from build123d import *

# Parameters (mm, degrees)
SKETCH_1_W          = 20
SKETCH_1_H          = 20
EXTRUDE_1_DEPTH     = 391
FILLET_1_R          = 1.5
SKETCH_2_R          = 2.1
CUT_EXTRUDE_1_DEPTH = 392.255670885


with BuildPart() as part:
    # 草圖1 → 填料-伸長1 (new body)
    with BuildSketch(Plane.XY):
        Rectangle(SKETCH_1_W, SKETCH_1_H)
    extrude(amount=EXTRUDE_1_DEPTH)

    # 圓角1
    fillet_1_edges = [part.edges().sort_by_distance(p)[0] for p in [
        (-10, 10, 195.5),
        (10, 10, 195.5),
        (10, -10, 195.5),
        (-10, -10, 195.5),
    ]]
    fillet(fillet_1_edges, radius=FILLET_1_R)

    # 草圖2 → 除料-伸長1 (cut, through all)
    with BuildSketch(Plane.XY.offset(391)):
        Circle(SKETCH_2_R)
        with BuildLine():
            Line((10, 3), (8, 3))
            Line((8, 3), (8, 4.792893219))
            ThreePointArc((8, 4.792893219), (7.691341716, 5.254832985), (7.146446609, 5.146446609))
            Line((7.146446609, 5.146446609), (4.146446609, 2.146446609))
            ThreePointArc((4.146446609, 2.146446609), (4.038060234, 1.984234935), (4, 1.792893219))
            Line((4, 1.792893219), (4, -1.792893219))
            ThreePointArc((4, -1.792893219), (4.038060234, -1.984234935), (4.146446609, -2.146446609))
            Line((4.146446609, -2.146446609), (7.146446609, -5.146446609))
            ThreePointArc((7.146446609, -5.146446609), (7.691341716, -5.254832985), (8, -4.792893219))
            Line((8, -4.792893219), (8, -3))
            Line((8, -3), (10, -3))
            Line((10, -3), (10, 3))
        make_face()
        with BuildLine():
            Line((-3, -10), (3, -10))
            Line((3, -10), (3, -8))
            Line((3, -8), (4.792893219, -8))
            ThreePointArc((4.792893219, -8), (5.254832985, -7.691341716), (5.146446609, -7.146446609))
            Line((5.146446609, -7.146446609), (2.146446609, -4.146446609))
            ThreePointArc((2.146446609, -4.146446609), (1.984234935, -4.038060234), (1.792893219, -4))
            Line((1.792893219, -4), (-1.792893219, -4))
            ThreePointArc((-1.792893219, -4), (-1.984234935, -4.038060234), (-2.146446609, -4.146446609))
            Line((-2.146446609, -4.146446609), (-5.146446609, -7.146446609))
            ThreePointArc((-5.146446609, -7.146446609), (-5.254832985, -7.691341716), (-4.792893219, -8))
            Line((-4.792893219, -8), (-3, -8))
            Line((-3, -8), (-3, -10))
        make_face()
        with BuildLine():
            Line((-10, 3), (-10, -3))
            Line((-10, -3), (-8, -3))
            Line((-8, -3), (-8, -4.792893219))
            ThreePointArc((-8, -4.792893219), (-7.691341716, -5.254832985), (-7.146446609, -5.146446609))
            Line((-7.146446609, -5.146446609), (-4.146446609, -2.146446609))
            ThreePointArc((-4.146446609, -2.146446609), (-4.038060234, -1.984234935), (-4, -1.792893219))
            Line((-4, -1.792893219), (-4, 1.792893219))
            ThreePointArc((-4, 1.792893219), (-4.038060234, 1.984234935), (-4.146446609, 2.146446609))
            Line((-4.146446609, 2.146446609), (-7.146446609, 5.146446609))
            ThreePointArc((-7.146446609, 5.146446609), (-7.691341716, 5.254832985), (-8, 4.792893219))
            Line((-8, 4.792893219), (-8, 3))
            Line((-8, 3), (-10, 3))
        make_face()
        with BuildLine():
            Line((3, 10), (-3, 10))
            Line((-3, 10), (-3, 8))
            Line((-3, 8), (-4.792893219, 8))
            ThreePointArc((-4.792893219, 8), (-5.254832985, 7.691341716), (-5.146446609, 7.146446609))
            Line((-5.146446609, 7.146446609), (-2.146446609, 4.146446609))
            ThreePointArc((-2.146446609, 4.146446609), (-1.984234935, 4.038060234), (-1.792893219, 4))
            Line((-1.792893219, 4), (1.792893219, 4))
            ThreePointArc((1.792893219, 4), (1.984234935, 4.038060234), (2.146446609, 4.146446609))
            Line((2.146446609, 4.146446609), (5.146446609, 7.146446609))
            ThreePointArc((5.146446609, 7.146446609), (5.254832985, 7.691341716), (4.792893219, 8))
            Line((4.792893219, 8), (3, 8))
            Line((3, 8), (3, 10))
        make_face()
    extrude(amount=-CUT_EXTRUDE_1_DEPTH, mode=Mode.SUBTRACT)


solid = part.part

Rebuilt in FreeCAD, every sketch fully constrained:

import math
import FreeCAD as App
import Part
import Sketcher


def edges_at(feature, points):
    """Names of the edges that pass closest to the given points."""
    edges = feature.Shape.Edges
    near = lambda p: min(range(len(edges)), key=lambda i: edges[i].distToShape(Part.Vertex(*p))[0])
    return sorted({f"Edge{near(p) + 1}" for p in points})


def add_polygon(sketch, points):
    """Adds a closed chain of lines whose ends are joined by coincident constraints."""
    first, n = sketch.GeometryCount, len(points)
    for a, b in zip(points, points[1:] + points[:1]):
        sketch.addGeometry(Part.LineSegment(App.Vector(*a, 0), App.Vector(*b, 0)), False)
    for i in range(n):
        sketch.addConstraint(Sketcher.Constraint("Coincident", first + i, 2, first + (i + 1) % n, 1))

doc = App.newDocument("Part")
body = doc.addObject("PartDesign::Body", "Body")

# Sketch on XY plane
sketch1 = body.newObject("Sketcher::SketchObject", "Sketch")
sketch1.AttachmentSupport = (doc.getObject("XY_Plane"), [""])
sketch1.MapMode = "FlatFace"
add_polygon(sketch1, [(-10, 10), (-10, -10), (10, -10), (10, 10)])  # lines 0-3
sketch1.addConstraint(Sketcher.Constraint("Vertical", 0))
sketch1.addConstraint(Sketcher.Constraint("Horizontal", 1))
sketch1.addConstraint(Sketcher.Constraint("Vertical", 2))
sketch1.addConstraint(Sketcher.Constraint("Horizontal", 3))
sketch1.addConstraint(Sketcher.Constraint("Symmetric", 0, 2, 2, 2, -1, 1))
sketch1.addConstraint(Sketcher.Constraint("Equal", 3, 0))
sketch1.addConstraint(Sketcher.Constraint("DistanceX", 1, 1, 1, 2, 20.0))
pad1 = body.newObject("PartDesign::Pad", "Pad")
pad1.Profile = sketch1
pad1.Length = 391
doc.recompute()

fillet = body.newObject("PartDesign::Fillet", "Fillet")
fillet.Base = (pad1, edges_at(pad1, [
    (-10, 10, 195.5),
    (10, 10, 195.5),
    (10, -10, 195.5),
    (-10, -10, 195.5),
]))
fillet.Radius = 1.5

# Sketch on XY plane
sketch2 = body.newObject("Sketcher::SketchObject", "Sketch001")
sketch2.AttachmentSupport = (doc.getObject("XY_Plane"), [""])
sketch2.MapMode = "FlatFace"
sketch2.AttachmentOffset = App.Placement(App.Vector(0, 0, 391), App.Rotation())
sketch2.addGeometry(Part.Circle(App.Vector(0, 0, 0), App.Vector(0, 0, 1), 2.1), False)
sketch2.addGeometry(Part.LineSegment(App.Vector(10, 3, 0), App.Vector(8, 3, 0)), False)
sketch2.addGeometry(Part.LineSegment(App.Vector(8, 3, 0), App.Vector(8, 4.79, 0)), False)
sketch2.addGeometry(Part.ArcOfCircle(Part.Circle(App.Vector(7.5, 4.79, 0), App.Vector(0, 0, 1), 0.5), math.radians(0), math.radians(135)), False)
sketch2.addGeometry(Part.LineSegment(App.Vector(7.15, 5.15, 0), App.Vector(4.15, 2.15, 0)), False)
sketch2.addGeometry(Part.ArcOfCircle(Part.Circle(App.Vector(4.5, 1.79, 0), App.Vector(0, 0, 1), 0.5), math.radians(135), math.radians(180)), False)
sketch2.addGeometry(Part.LineSegment(App.Vector(4, 1.79, 0), App.Vector(4, -1.79, 0)), False)
sketch2.addGeometry(Part.ArcOfCircle(Part.Circle(App.Vector(4.5, -1.79, 0), App.Vector(0, 0, 1), 0.5), math.radians(-180), math.radians(-135)), False)
sketch2.addGeometry(Part.LineSegment(App.Vector(4.15, -2.15, 0), App.Vector(7.15, -5.15, 0)), False)
sketch2.addGeometry(Part.ArcOfCircle(Part.Circle(App.Vector(7.5, -4.79, 0), App.Vector(0, 0, 1), 0.5), math.radians(-135), math.radians(0)), False)
sketch2.addGeometry(Part.LineSegment(App.Vector(8, -4.79, 0), App.Vector(8, -3, 0)), False)
sketch2.addGeometry(Part.LineSegment(App.Vector(8, -3, 0), App.Vector(10, -3, 0)), False)
sketch2.addGeometry(Part.LineSegment(App.Vector(10, -3, 0), App.Vector(10, 3, 0)), False)
sketch2.addGeometry(Part.LineSegment(App.Vector(-3, -10, 0), App.Vector(3, -10, 0)), False)
sketch2.addGeometry(Part.LineSegment(App.Vector(3, -10, 0), App.Vector(3, -8, 0)), False)
sketch2.addGeometry(Part.LineSegment(App.Vector(3, -8, 0), App.Vector(4.79, -8, 0)), False)
sketch2.addGeometry(Part.ArcOfCircle(Part.Circle(App.Vector(4.79, -7.5, 0), App.Vector(0, 0, 1), 0.5), math.radians(-90), math.radians(45)), False)
sketch2.addGeometry(Part.LineSegment(App.Vector(5.15, -7.15, 0), App.Vector(2.15, -4.15, 0)), False)
sketch2.addGeometry(Part.ArcOfCircle(Part.Circle(App.Vector(1.79, -4.5, 0), App.Vector(0, 0, 1), 0.5), math.radians(45), math.radians(90)), False)
sketch2.addGeometry(Part.LineSegment(App.Vector(1.79, -4, 0), App.Vector(-1.79, -4, 0)), False)
sketch2.addGeometry(Part.ArcOfCircle(Part.Circle(App.Vector(-1.79, -4.5, 0), App.Vector(0, 0, 1), 0.5), math.radians(90), math.radians(135)), False)
sketch2.addGeometry(Part.LineSegment(App.Vector(-2.15, -4.15, 0), App.Vector(-5.15, -7.15, 0)), False)
sketch2.addGeometry(Part.ArcOfCircle(Part.Circle(App.Vector(-4.79, -7.5, 0), App.Vector(0, 0, 1), 0.5), math.radians(135), math.radians(270)), False)
sketch2.addGeometry(Part.LineSegment(App.Vector(-4.79, -8, 0), App.Vector(-3, -8, 0)), False)
sketch2.addGeometry(Part.LineSegment(App.Vector(-3, -8, 0), App.Vector(-3, -10, 0)), False)
sketch2.addGeometry(Part.LineSegment(App.Vector(-10, 3, 0), App.Vector(-10, -3, 0)), False)
sketch2.addGeometry(Part.LineSegment(App.Vector(-10, -3, 0), App.Vector(-8, -3, 0)), False)
sketch2.addGeometry(Part.LineSegment(App.Vector(-8, -3, 0), App.Vector(-8, -4.79, 0)), False)
sketch2.addGeometry(Part.ArcOfCircle(Part.Circle(App.Vector(-7.5, -4.79, 0), App.Vector(0, 0, 1), 0.5), math.radians(180), math.radians(315)), False)
sketch2.addGeometry(Part.LineSegment(App.Vector(-7.15, -5.15, 0), App.Vector(-4.15, -2.15, 0)), False)
sketch2.addGeometry(Part.ArcOfCircle(Part.Circle(App.Vector(-4.5, -1.79, 0), App.Vector(0, 0, 1), 0.5), math.radians(-45), math.radians(0)), False)
sketch2.addGeometry(Part.LineSegment(App.Vector(-4, -1.79, 0), App.Vector(-4, 1.79, 0)), False)
sketch2.addGeometry(Part.ArcOfCircle(Part.Circle(App.Vector(-4.5, 1.79, 0), App.Vector(0, 0, 1), 0.5), math.radians(0), math.radians(45)), False)
sketch2.addGeometry(Part.LineSegment(App.Vector(-4.15, 2.15, 0), App.Vector(-7.15, 5.15, 0)), False)
sketch2.addGeometry(Part.ArcOfCircle(Part.Circle(App.Vector(-7.5, 4.79, 0), App.Vector(0, 0, 1), 0.5), math.radians(45), math.radians(180)), False)
sketch2.addGeometry(Part.LineSegment(App.Vector(-8, 4.79, 0), App.Vector(-8, 3, 0)), False)
sketch2.addGeometry(Part.LineSegment(App.Vector(-8, 3, 0), App.Vector(-10, 3, 0)), False)
sketch2.addGeometry(Part.LineSegment(App.Vector(3, 10, 0), App.Vector(-3, 10, 0)), False)
sketch2.addGeometry(Part.LineSegment(App.Vector(-3, 10, 0), App.Vector(-3, 8, 0)), False)
sketch2.addGeometry(Part.LineSegment(App.Vector(-3, 8, 0), App.Vector(-4.79, 8, 0)), False)
sketch2.addGeometry(Part.ArcOfCircle(Part.Circle(App.Vector(-4.79, 7.5, 0), App.Vector(0, 0, 1), 0.5), math.radians(90), math.radians(225)), False)
sketch2.addGeometry(Part.LineSegment(App.Vector(-5.15, 7.15, 0), App.Vector(-2.15, 4.15, 0)), False)
sketch2.addGeometry(Part.ArcOfCircle(Part.Circle(App.Vector(-1.79, 4.5, 0), App.Vector(0, 0, 1), 0.5), math.radians(-135), math.radians(-90)), False)
sketch2.addGeometry(Part.LineSegment(App.Vector(-1.79, 4, 0), App.Vector(1.79, 4, 0)), False)
sketch2.addGeometry(Part.ArcOfCircle(Part.Circle(App.Vector(1.79, 4.5, 0), App.Vector(0, 0, 1), 0.5), math.radians(-90), math.radians(-45)), False)
sketch2.addGeometry(Part.LineSegment(App.Vector(2.15, 4.15, 0), App.Vector(5.15, 7.15, 0)), False)
sketch2.addGeometry(Part.ArcOfCircle(Part.Circle(App.Vector(4.79, 7.5, 0), App.Vector(0, 0, 1), 0.5), math.radians(-45), math.radians(90)), False)
sketch2.addGeometry(Part.LineSegment(App.Vector(4.79, 8, 0), App.Vector(3, 8, 0)), False)
sketch2.addGeometry(Part.LineSegment(App.Vector(3, 8, 0), App.Vector(3, 10, 0)), False)
sketch2.addConstraint(Sketcher.Constraint("Coincident", 1, 2, 2, 1))
sketch2.addConstraint(Sketcher.Constraint("Tangent", 2, 2, 3, 1))
sketch2.addConstraint(Sketcher.Constraint("Tangent", 3, 2, 4, 1))
sketch2.addConstraint(Sketcher.Constraint("Tangent", 4, 2, 5, 1))
sketch2.addConstraint(Sketcher.Constraint("Tangent", 5, 2, 6, 1))
sketch2.addConstraint(Sketcher.Constraint("Tangent", 6, 2, 7, 1))
sketch2.addConstraint(Sketcher.Constraint("Tangent", 7, 2, 8, 1))
sketch2.addConstraint(Sketcher.Constraint("Tangent", 8, 2, 9, 1))
sketch2.addConstraint(Sketcher.Constraint("Tangent", 9, 2, 10, 1))
sketch2.addConstraint(Sketcher.Constraint("Coincident", 10, 2, 11, 1))
sketch2.addConstraint(Sketcher.Constraint("Coincident", 11, 2, 12, 1))
sketch2.addConstraint(Sketcher.Constraint("Coincident", 12, 2, 1, 1))
sketch2.addConstraint(Sketcher.Constraint("Coincident", 13, 2, 14, 1))
sketch2.addConstraint(Sketcher.Constraint("Coincident", 14, 2, 15, 1))
sketch2.addConstraint(Sketcher.Constraint("Tangent", 15, 2, 16, 1))
sketch2.addConstraint(Sketcher.Constraint("Tangent", 16, 2, 17, 1))
sketch2.addConstraint(Sketcher.Constraint("Tangent", 17, 2, 18, 1))
sketch2.addConstraint(Sketcher.Constraint("Tangent", 18, 2, 19, 1))
sketch2.addConstraint(Sketcher.Constraint("Tangent", 19, 2, 20, 1))
sketch2.addConstraint(Sketcher.Constraint("Tangent", 20, 2, 21, 1))
sketch2.addConstraint(Sketcher.Constraint("Tangent", 21, 2, 22, 1))
sketch2.addConstraint(Sketcher.Constraint("Tangent", 22, 2, 23, 1))
sketch2.addConstraint(Sketcher.Constraint("Coincident", 23, 2, 24, 1))
sketch2.addConstraint(Sketcher.Constraint("Coincident", 24, 2, 13, 1))
sketch2.addConstraint(Sketcher.Constraint("Coincident", 25, 2, 26, 1))
sketch2.addConstraint(Sketcher.Constraint("Coincident", 26, 2, 27, 1))
sketch2.addConstraint(Sketcher.Constraint("Tangent", 27, 2, 28, 1))
sketch2.addConstraint(Sketcher.Constraint("Tangent", 28, 2, 29, 1))
sketch2.addConstraint(Sketcher.Constraint("Tangent", 29, 2, 30, 1))
sketch2.addConstraint(Sketcher.Constraint("Tangent", 30, 2, 31, 1))
sketch2.addConstraint(Sketcher.Constraint("Tangent", 31, 2, 32, 1))
sketch2.addConstraint(Sketcher.Constraint("Tangent", 32, 2, 33, 1))
sketch2.addConstraint(Sketcher.Constraint("Tangent", 33, 2, 34, 1))
sketch2.addConstraint(Sketcher.Constraint("Tangent", 34, 2, 35, 1))
sketch2.addConstraint(Sketcher.Constraint("Coincident", 35, 2, 36, 1))
sketch2.addConstraint(Sketcher.Constraint("Coincident", 36, 2, 25, 1))
sketch2.addConstraint(Sketcher.Constraint("Coincident", 37, 2, 38, 1))
sketch2.addConstraint(Sketcher.Constraint("Coincident", 38, 2, 39, 1))
sketch2.addConstraint(Sketcher.Constraint("Tangent", 39, 2, 40, 1))
sketch2.addConstraint(Sketcher.Constraint("Tangent", 40, 2, 41, 1))
sketch2.addConstraint(Sketcher.Constraint("Tangent", 41, 2, 42, 1))
sketch2.addConstraint(Sketcher.Constraint("Tangent", 42, 2, 43, 1))
sketch2.addConstraint(Sketcher.Constraint("Tangent", 43, 2, 44, 1))
sketch2.addConstraint(Sketcher.Constraint("Tangent", 44, 2, 45, 1))
sketch2.addConstraint(Sketcher.Constraint("Tangent", 45, 2, 46, 1))
sketch2.addConstraint(Sketcher.Constraint("Tangent", 46, 2, 47, 1))
sketch2.addConstraint(Sketcher.Constraint("Coincident", 47, 2, 48, 1))
sketch2.addConstraint(Sketcher.Constraint("Coincident", 48, 2, 37, 1))
sketch2.addConstraint(Sketcher.Constraint("Horizontal", 1))
sketch2.addConstraint(Sketcher.Constraint("Vertical", 2))
sketch2.addConstraint(Sketcher.Constraint("Vertical", 6))
sketch2.addConstraint(Sketcher.Constraint("Vertical", 10))
sketch2.addConstraint(Sketcher.Constraint("Horizontal", 11))
sketch2.addConstraint(Sketcher.Constraint("Vertical", 12))
sketch2.addConstraint(Sketcher.Constraint("Horizontal", 13))
sketch2.addConstraint(Sketcher.Constraint("Vertical", 14))
sketch2.addConstraint(Sketcher.Constraint("Horizontal", 15))
sketch2.addConstraint(Sketcher.Constraint("Horizontal", 19))
sketch2.addConstraint(Sketcher.Constraint("Horizontal", 23))
sketch2.addConstraint(Sketcher.Constraint("Vertical", 24))
sketch2.addConstraint(Sketcher.Constraint("Vertical", 25))
sketch2.addConstraint(Sketcher.Constraint("Horizontal", 26))
sketch2.addConstraint(Sketcher.Constraint("Vertical", 27))
sketch2.addConstraint(Sketcher.Constraint("Vertical", 31))
sketch2.addConstraint(Sketcher.Constraint("Vertical", 35))
sketch2.addConstraint(Sketcher.Constraint("Horizontal", 36))
sketch2.addConstraint(Sketcher.Constraint("Horizontal", 37))
sketch2.addConstraint(Sketcher.Constraint("Vertical", 38))
sketch2.addConstraint(Sketcher.Constraint("Horizontal", 39))
sketch2.addConstraint(Sketcher.Constraint("Horizontal", 43))
sketch2.addConstraint(Sketcher.Constraint("Horizontal", 47))
sketch2.addConstraint(Sketcher.Constraint("Vertical", 48))
sketch2.addConstraint(Sketcher.Constraint("Coincident", 0, 3, -1, 1))
sketch2.addConstraint(Sketcher.Constraint("Equal", 3, 5))
sketch2.addConstraint(Sketcher.Constraint("Equal", 5, 7))
sketch2.addConstraint(Sketcher.Constraint("Equal", 7, 9))
sketch2.addConstraint(Sketcher.Constraint("Equal", 9, 16))
sketch2.addConstraint(Sketcher.Constraint("Equal", 16, 18))
sketch2.addConstraint(Sketcher.Constraint("Equal", 18, 20))
sketch2.addConstraint(Sketcher.Constraint("Equal", 20, 22))
sketch2.addConstraint(Sketcher.Constraint("Equal", 22, 28))
sketch2.addConstraint(Sketcher.Constraint("Equal", 28, 30))
sketch2.addConstraint(Sketcher.Constraint("Equal", 30, 32))
sketch2.addConstraint(Sketcher.Constraint("Equal", 32, 34))
sketch2.addConstraint(Sketcher.Constraint("Equal", 34, 40))
sketch2.addConstraint(Sketcher.Constraint("Equal", 40, 42))
sketch2.addConstraint(Sketcher.Constraint("Equal", 42, 44))
sketch2.addConstraint(Sketcher.Constraint("Equal", 44, 46))
sketch2.addConstraint(Sketcher.Constraint("Symmetric", 3, 3, 28, 3, -1, 1))
sketch2.addConstraint(Sketcher.Constraint("Symmetric", 5, 3, 30, 3, -1, 1))
sketch2.addConstraint(Sketcher.Constraint("Symmetric", 9, 3, 34, 3, -1, 1))
sketch2.addConstraint(Sketcher.Constraint("Symmetric", 16, 3, 40, 3, -1, 1))
sketch2.addConstraint(Sketcher.Constraint("Symmetric", 18, 3, 42, 3, -1, 1))
sketch2.addConstraint(Sketcher.Constraint("Symmetric", 22, 3, 46, 3, -1, 1))
sketch2.addConstraint(Sketcher.Constraint("Symmetric", 12, 2, 25, 2, -1, 1))
sketch2.addConstraint(Sketcher.Constraint("Symmetric", 13, 2, 37, 2, -1, 1))
sketch2.addConstraint(Sketcher.Constraint("Symmetric", 16, 3, 22, 3, -2))
sketch2.addConstraint(Sketcher.Constraint("Symmetric", 9, 3, 28, 3, -2))
sketch2.addConstraint(Sketcher.Constraint("Perpendicular", 4, 8))
sketch2.addConstraint(Sketcher.Constraint("Parallel", 8, 17))
sketch2.addConstraint(Sketcher.Constraint("Perpendicular", 17, 21))
sketch2.addConstraint(Sketcher.Constraint("Perpendicular", 29, 33))
sketch2.addConstraint(Sketcher.Constraint("Perpendicular", 41, 45))
sketch2.addConstraint(Sketcher.Constraint("Horizontal", 7, 3, 30, 3))
sketch2.addConstraint(Sketcher.Constraint("Horizontal", 11, 2, 25, 2))
sketch2.addConstraint(Sketcher.Constraint("Horizontal", 12, 2, 35, 2))
sketch2.addConstraint(Sketcher.Constraint("Vertical", 24, 2, 37, 2))
sketch2.addConstraint(Sketcher.Constraint("Vertical", 14, 2, 47, 2))
sketch2.addConstraint(Sketcher.Constraint("Equal", 47, 2))
sketch2.addConstraint(Sketcher.Constraint("Equal", 43, 6))
sketch2.addConstraint(Sketcher.Constraint("Equal", 37, 12))
sketch2.addConstraint(Sketcher.Constraint("Equal", 36, 14))
sketch2.addConstraint(Sketcher.Constraint("Diameter", 0, 4.2))
sketch2.addConstraint(Sketcher.Constraint("Radius", 3, 0.5))
sketch2.addConstraint(Sketcher.Constraint("DistanceX", 1, 2, 1, 1, 2.0))
sketch2.addConstraint(Sketcher.Constraint("DistanceX", 13, 1, 13, 2, 6.0))
sketch2.addConstraint(Sketcher.Constraint("DistanceX", -1, 1, 1, 2, 8.0))
sketch2.addConstraint(Sketcher.Constraint("DistanceX", -1, 1, 5, 2, 4.0))
sketch2.addConstraint(Sketcher.Constraint("DistanceY", 13, 2, -1, 1, 10.0))
sketch2.addConstraint(Sketcher.Constraint("DistanceX", 15, 1, 15, 2, 1.792893))
pocket1 = body.newObject("PartDesign::Pocket", "Pocket")
pocket1.Profile = sketch2
pocket1.Type = "ThroughAll"

doc.recompute()
